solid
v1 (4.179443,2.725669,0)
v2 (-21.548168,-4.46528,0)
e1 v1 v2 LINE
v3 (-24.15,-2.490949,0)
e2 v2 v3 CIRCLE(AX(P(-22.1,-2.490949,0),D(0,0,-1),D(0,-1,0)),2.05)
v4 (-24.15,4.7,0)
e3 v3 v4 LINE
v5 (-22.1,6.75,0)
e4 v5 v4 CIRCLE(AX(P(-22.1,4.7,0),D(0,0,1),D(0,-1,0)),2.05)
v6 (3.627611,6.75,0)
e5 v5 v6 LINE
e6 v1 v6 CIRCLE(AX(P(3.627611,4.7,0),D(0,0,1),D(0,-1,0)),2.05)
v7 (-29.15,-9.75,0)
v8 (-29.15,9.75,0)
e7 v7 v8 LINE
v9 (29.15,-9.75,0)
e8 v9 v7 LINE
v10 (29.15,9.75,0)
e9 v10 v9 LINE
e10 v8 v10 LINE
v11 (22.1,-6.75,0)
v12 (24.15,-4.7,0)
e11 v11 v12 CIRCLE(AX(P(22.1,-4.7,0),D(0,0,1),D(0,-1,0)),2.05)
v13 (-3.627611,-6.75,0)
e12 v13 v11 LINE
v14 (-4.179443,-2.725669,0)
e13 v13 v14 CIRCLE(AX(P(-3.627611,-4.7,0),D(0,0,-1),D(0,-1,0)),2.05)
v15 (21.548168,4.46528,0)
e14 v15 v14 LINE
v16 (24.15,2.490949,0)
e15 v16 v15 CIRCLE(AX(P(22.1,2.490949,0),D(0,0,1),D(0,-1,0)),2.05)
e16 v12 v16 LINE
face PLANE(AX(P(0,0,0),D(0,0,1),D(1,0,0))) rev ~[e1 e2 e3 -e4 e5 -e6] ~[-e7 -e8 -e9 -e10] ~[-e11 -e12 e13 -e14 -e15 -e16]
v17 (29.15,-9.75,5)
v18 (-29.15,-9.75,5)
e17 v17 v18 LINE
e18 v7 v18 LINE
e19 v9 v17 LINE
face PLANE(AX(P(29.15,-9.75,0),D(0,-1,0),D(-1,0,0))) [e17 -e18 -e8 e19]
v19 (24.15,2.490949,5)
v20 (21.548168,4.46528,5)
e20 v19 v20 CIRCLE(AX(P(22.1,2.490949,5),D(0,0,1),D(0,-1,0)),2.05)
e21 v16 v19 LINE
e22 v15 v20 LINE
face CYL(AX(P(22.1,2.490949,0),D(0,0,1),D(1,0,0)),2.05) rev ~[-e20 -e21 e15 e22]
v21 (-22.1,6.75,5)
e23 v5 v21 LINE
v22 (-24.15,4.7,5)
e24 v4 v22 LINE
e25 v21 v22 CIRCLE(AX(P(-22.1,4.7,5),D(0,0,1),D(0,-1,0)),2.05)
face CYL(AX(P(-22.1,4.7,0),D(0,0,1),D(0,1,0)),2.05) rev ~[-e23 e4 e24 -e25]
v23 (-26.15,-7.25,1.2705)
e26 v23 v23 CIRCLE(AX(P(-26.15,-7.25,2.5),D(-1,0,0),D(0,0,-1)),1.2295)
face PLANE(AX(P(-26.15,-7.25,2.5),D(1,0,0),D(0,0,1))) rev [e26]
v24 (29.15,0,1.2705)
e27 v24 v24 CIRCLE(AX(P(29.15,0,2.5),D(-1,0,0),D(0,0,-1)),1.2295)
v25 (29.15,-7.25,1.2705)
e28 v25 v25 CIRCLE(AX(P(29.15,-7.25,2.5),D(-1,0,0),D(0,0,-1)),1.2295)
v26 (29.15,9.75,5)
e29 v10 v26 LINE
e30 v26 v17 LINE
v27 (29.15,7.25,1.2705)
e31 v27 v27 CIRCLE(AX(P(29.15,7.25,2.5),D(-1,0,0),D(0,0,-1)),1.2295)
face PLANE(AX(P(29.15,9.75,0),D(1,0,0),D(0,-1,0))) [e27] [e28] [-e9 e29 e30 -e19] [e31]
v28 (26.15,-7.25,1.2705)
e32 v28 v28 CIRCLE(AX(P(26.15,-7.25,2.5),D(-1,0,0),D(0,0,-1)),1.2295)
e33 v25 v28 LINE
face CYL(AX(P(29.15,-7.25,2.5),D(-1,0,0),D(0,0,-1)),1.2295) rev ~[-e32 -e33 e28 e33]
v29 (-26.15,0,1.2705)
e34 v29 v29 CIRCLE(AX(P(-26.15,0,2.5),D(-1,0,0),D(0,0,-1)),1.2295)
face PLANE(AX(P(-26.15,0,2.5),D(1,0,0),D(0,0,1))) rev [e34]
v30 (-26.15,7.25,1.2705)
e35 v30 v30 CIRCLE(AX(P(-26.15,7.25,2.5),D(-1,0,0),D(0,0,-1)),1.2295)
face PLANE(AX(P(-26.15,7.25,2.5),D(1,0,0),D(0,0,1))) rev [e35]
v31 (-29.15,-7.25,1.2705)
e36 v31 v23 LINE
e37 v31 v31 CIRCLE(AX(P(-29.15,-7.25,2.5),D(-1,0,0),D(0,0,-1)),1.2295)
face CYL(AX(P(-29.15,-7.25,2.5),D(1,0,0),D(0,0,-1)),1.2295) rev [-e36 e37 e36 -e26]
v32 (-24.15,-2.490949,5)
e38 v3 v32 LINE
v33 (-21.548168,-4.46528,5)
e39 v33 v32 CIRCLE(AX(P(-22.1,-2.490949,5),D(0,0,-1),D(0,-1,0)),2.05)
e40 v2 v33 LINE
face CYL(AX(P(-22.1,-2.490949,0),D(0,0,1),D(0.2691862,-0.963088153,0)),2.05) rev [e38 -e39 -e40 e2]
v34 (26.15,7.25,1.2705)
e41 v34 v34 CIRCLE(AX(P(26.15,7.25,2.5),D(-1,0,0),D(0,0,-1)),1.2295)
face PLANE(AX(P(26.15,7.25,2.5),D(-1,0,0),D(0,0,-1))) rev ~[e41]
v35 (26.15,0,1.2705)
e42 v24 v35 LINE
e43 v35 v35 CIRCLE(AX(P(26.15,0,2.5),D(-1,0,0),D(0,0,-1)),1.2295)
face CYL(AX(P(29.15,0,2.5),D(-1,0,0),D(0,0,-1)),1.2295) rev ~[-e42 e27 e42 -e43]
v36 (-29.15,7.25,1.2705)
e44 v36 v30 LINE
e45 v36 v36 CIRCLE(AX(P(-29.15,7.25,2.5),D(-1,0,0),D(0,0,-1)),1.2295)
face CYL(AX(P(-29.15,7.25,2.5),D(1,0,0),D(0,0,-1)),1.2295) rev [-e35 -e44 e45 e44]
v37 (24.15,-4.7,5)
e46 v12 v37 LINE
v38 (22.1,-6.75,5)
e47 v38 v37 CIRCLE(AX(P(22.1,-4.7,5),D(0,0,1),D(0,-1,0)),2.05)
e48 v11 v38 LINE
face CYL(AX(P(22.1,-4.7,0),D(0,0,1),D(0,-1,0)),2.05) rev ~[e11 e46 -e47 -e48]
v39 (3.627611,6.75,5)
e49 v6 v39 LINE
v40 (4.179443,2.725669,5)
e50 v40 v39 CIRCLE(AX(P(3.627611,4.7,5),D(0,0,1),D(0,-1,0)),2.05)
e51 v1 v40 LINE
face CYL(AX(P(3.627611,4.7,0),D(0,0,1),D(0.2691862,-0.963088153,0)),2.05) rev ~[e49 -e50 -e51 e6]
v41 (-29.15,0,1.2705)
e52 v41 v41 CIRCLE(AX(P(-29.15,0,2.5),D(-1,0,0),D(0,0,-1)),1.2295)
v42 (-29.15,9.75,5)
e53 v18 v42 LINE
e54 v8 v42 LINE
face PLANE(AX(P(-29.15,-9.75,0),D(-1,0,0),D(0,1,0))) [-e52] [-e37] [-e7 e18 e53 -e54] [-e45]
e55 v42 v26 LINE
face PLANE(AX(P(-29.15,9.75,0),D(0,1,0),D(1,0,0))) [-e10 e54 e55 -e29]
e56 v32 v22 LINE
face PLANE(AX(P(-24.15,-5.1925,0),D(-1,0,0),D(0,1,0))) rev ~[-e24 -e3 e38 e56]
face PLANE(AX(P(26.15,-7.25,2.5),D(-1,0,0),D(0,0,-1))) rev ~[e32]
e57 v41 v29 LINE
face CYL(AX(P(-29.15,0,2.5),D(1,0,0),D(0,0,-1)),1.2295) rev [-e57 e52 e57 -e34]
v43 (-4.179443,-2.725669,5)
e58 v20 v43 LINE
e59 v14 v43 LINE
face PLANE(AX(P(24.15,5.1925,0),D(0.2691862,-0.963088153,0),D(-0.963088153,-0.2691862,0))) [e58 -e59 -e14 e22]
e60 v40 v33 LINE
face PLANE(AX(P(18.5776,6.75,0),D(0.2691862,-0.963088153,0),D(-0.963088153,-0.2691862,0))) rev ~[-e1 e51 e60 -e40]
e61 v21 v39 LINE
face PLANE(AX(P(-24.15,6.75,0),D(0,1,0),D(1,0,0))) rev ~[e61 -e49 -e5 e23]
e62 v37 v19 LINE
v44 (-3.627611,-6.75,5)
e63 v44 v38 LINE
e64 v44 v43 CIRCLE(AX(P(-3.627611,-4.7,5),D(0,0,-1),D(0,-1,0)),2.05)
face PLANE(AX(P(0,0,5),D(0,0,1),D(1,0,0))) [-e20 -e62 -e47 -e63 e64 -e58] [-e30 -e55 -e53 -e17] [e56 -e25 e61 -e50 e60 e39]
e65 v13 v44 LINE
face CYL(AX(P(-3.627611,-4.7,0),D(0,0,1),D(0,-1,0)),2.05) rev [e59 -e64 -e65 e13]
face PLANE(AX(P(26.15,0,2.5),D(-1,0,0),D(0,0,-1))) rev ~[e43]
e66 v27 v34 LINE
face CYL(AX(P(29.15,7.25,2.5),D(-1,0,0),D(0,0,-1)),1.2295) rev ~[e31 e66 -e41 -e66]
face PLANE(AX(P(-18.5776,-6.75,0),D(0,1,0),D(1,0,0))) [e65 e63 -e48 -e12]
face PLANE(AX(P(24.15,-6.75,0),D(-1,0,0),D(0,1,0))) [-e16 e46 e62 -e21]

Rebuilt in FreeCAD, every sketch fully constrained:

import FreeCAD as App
import Part
import Sketcher


def edges_at(feature, points):
    """Names of the edges that pass closest to the given points."""
    edges = feature.Shape.Edges
    near = lambda p: min(range(len(edges)), key=lambda i: edges[i].distToShape(Part.Vertex(*p))[0])
    return sorted({f"Edge{near(p) + 1}" for p in points})


def add_polygon(sketch, points):
    """Adds a closed chain of lines whose ends are joined by coincident constraints."""
    first, n = sketch.GeometryCount, len(points)
    for a, b in zip(points, points[1:] + points[:1]):
        sketch.addGeometry(Part.LineSegment(App.Vector(*a, 0), App.Vector(*b, 0)), False)
    for i in range(n):
        sketch.addConstraint(Sketcher.Constraint("Coincident", first + i, 2, first + (i + 1) % n, 1))

doc = App.newDocument("Part")
body = doc.addObject("PartDesign::Body", "Body")

# Sketch on XY plane
sketch1 = body.newObject("Sketcher::SketchObject", "Sketch")
sketch1.AttachmentSupport = (doc.getObject("XY_Plane"), [""])
sketch1.MapMode = "FlatFace"
add_polygon(sketch1, [(29, 10), (-29, 10), (-29, -10), (29, -10)])  # lines 0-3
add_polygon(sketch1, [(24, -7), (-19, -7), (24, 5)])  # lines 4-6
add_polygon(sketch1, [(19, 7), (-24, -5), (-24, 7)])  # lines 7-9
sketch1.addConstraint([
    Sketcher.Constraint("Horizontal", 0),
    Sketcher.Constraint("Vertical", 1),
    Sketcher.Constraint("Horizontal", 2),
    Sketcher.Constraint("Vertical", 3),
    Sketcher.Constraint("Horizontal", 4),
    Sketcher.Constraint("Vertical", 6),
    Sketcher.Constraint("Vertical", 8),
    Sketcher.Constraint("Horizontal", 9),
    Sketcher.Constraint("Symmetric", 0, 2, 2, 2, -1, 1),
    Sketcher.Constraint("Symmetric", 5, 2, 7, 2, -1, 1),
    Sketcher.Constraint("Symmetric", 4, 2, 9, 2, -1, 1),
    Sketcher.Constraint("DistanceX", 0, 2, 0, 1, 58.3),
    Sketcher.Constraint("DistanceY", 1, 2, 4, 2, 3.0),
    Sketcher.Constraint("DistanceX", 5, 2, 3, 2, 5.0),
    Sketcher.Constraint("DistanceY", 1, 2, 1, 1, 19.5),
    Sketcher.Constraint("DistanceX", 4, 2, 4, 1, 42.7276),
    Sketcher.Constraint("DistanceY", 6, 2, 6, 1, 11.9425),
])
pad1 = body.newObject("PartDesign::Pad", "Pad")
pad1.Profile = sketch1
pad1.Length = 5

# Sketch on YZ plane
sketch2 = body.newObject("Sketcher::SketchObject", "Sketch001")
sketch2.AttachmentSupport = (doc.getObject("YZ_Plane"), [""])
sketch2.MapMode = "FlatFace"
sketch2.AttachmentOffset = App.Placement(App.Vector(0, 0, 29.15), App.Rotation())
sketch2.addGeometry([
    Part.Circle(App.Vector(-7.2, 2.5, 0), App.Vector(0, 0, 1), 1.2),
    Part.Circle(App.Vector(7.2, 2.5, 0), App.Vector(0, 0, 1), 1.2),
    Part.Circle(App.Vector(0, 2.5, 0), App.Vector(0, 0, 1), 1.2),
], False)
sketch2.addConstraint([
    Sketcher.Constraint("Equal", 0, 1),
    Sketcher.Constraint("Equal", 1, 2),
    Sketcher.Constraint("Symmetric", 0, 3, 1, 3, -2),
    Sketcher.Constraint("PointOnObject", 2, 3, -2),
    Sketcher.Constraint("Horizontal", 1, 3, 2, 3),
    Sketcher.Constraint("Diameter", 0, 2.459),
    Sketcher.Constraint("DistanceY", -1, 1, 0, 3, 2.5),
    Sketcher.Constraint("DistanceX", 0, 3, 1, 3, 14.5),
])
doc.recompute()
hole = body.newObject("PartDesign::Hole", "Hole")
hole.Profile = sketch2
hole.ThreadType = "None"
hole.Diameter = 2.459
hole.DepthType = "Dimension"
hole.Depth = 3
hole.DrillPoint = "Flat"
doc.recompute()

mirrored = body.newObject("PartDesign::Mirrored", "Mirrored")
mirrored.Originals = [hole]
mirrored.MirrorPlane = (doc.getObject("YZ_Plane"), [""])
body.Tip = mirrored
doc.recompute()

fillet = body.newObject("PartDesign::Fillet", "Fillet")
fillet.Base = (mirrored, edges_at(mirrored, [
    (-24.15, 6.75, 2.5),
    (18.578, 6.75, 2.5),
    (24.15, 5.192, 2.5),
    (24.15, -6.75, 2.5),
    (-18.578, -6.75, 2.5),
    (-24.15, -5.192, 2.5),
]))
fillet.Radius = 2.05

doc.recompute()
